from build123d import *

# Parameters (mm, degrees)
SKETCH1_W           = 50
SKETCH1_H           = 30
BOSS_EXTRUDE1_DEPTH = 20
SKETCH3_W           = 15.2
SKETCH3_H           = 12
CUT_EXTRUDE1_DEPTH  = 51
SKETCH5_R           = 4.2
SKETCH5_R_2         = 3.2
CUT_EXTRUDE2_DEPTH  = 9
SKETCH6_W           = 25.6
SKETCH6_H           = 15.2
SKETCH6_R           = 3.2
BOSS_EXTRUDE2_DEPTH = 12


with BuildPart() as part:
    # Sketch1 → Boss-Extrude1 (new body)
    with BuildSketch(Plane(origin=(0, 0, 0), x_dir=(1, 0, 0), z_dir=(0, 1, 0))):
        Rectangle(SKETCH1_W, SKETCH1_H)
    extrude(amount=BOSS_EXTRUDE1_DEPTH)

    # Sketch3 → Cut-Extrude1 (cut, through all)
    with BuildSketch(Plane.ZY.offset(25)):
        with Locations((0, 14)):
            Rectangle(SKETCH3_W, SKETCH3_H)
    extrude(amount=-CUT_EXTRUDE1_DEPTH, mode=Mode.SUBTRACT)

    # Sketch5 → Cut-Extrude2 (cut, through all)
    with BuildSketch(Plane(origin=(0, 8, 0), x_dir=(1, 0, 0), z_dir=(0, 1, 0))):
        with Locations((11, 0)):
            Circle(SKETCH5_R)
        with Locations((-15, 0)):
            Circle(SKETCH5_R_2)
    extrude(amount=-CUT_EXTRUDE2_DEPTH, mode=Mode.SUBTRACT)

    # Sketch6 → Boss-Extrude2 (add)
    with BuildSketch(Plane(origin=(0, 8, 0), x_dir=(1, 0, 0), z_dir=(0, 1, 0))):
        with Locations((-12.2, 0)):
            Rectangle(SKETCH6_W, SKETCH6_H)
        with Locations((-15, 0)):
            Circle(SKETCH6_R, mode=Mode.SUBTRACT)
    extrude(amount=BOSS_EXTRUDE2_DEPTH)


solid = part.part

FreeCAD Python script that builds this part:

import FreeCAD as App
import Part
import Sketcher

V = App.Vector
Q = App.Units.Quantity


def add_polygon(sketch, points):
    """Adds a closed chain of lines whose ends are joined by coincident constraints."""
    first, n = sketch.GeometryCount, len(points)
    for a, b in zip(points, points[1:] + points[:1]):
        sketch.addGeometry(Part.LineSegment(App.Vector(*a, 0), App.Vector(*b, 0)), False)
    for i in range(n):
        sketch.addConstraint(Sketcher.Constraint("Coincident", first + i, 2, first + (i + 1) % n, 1))

doc = App.newDocument("Part")
body = doc.addObject("PartDesign::Body", "Body")

# Sketch on XZ plane
sketch1 = body.newObject("Sketcher::SketchObject", "Sketch")
sketch1.AttachmentSupport = (doc.getObject("XZ_Plane"), [""])
sketch1.MapMode = "FlatFace"
add_polygon(sketch1, [(-25, -15), (-25, 15), (25, 15), (25, -15)])  # lines 0-3
sketch1.addConstraint(Sketcher.Constraint("Vertical", 0))
sketch1.addConstraint(Sketcher.Constraint("Horizontal", 1))
sketch1.addConstraint(Sketcher.Constraint("Vertical", 2))
sketch1.addConstraint(Sketcher.Constraint("Horizontal", 3))
sketch1.addConstraint(Sketcher.Constraint("Symmetric", 0, 2, 2, 2, -1, 1))
sketch1.addConstraint(Sketcher.Constraint("DistanceX", 1, 1, 1, 2, Q("50 mm")))
sketch1.addConstraint(Sketcher.Constraint("DistanceY", 0, 1, 0, 2, Q("30 mm")))
pad1 = body.newObject("PartDesign::Pad", "Pad")
pad1.Profile = sketch1
pad1.Length = 20
pad1.Reversed = True

# Sketch on YZ plane
sketch2 = body.newObject("Sketcher::SketchObject", "Sketch001")
sketch2.AttachmentSupport = (doc.getObject("YZ_Plane"), [""])
sketch2.MapMode = "FlatFace"
sketch2.AttachmentOffset = App.Placement(V(0, 0, -25), App.Rotation())
add_polygon(sketch2, [(20, -7.6), (8, -7.6), (8, 7.6), (20, 7.6)])  # lines 0-3
sketch2.addConstraint(Sketcher.Constraint("Horizontal", 0))
sketch2.addConstraint(Sketcher.Constraint("Vertical", 1))
sketch2.addConstraint(Sketcher.Constraint("Horizontal", 2))
sketch2.addConstraint(Sketcher.Constraint("Vertical", 3))
sketch2.addConstraint(Sketcher.Constraint("DistanceX", 0, 2, 0, 1, Q("12 mm")))
sketch2.addConstraint(Sketcher.Constraint("DistanceY", 1, 1, 1, 2, Q("15.2 mm")))
sketch2.addConstraint(Sketcher.Constraint("DistanceX", -1, 1, 0, 2, Q("8 mm")))
sketch2.addConstraint(Sketcher.Constraint("DistanceY", 0, 2, -1, 1, Q("7.6 mm")))
pocket1 = body.newObject("PartDesign::Pocket", "Pocket")
pocket1.Profile = sketch2
pocket1.Type = "ThroughAll"
pocket1.Reversed = True

# Sketch on XZ plane
sketch3 = body.newObject("Sketcher::SketchObject", "Sketch002")
sketch3.AttachmentSupport = (doc.getObject("XZ_Plane"), [""])
sketch3.MapMode = "FlatFace"
sketch3.AttachmentOffset = App.Placement(V(0, 0, -8), App.Rotation())
sketch3.addGeometry(Part.Circle(V(11, 0, 0), V(0, 0, 1), 4.2), False)
sketch3.addGeometry(Part.Circle(V(-15, 0, 0), V(0, 0, 1), 3.2), False)
sketch3.addConstraint(Sketcher.Constraint("PointOnObject", 0, 3, -1))
sketch3.addConstraint(Sketcher.Constraint("PointOnObject", 1, 3, -1))
sketch3.addConstraint(Sketcher.Constraint("Diameter", 0, Q("8.4 mm")))
sketch3.addConstraint(Sketcher.Constraint("Diameter", 1, Q("6.4 mm")))
sketch3.addConstraint(Sketcher.Constraint("DistanceX", -1, 1, 0, 3, Q("11 mm")))
sketch3.addConstraint(Sketcher.Constraint("DistanceX", 1, 3, -1, 1, Q("15 mm")))
pocket2 = body.newObject("PartDesign::Pocket", "Pocket001")
pocket2.Profile = sketch3
pocket2.Type = "ThroughAll"
pocket2.Reversed = True

# Sketch on XZ plane
sketch4 = body.newObject("Sketcher::SketchObject", "Sketch003")
sketch4.AttachmentSupport = (doc.getObject("XZ_Plane"), [""])
sketch4.MapMode = "FlatFace"
sketch4.AttachmentOffset = App.Placement(V(0, 0, -8), App.Rotation())
add_polygon(sketch4, [(-25, -7.6), (-25, 7.6), (0.6, 7.6), (0.6, -7.6)])  # lines 0-3
sketch4.addGeometry(Part.Circle(V(-15, 0, 0), V(0, 0, 1), 3.2), False)  # 4
sketch4.addConstraint(Sketcher.Constraint("Vertical", 0))
sketch4.addConstraint(Sketcher.Constraint("Horizontal", 1))
sketch4.addConstraint(Sketcher.Constraint("Vertical", 2))
sketch4.addConstraint(Sketcher.Constraint("Horizontal", 3))
sketch4.addConstraint(Sketcher.Constraint("PointOnObject", 4, 3, -1))
sketch4.addConstraint(Sketcher.Constraint("Diameter", 4, Q("6.4 mm")))
sketch4.addConstraint(Sketcher.Constraint("DistanceX", 1, 1, 1, 2, Q("25.6 mm")))
sketch4.addConstraint(Sketcher.Constraint("DistanceY", 0, 1, 0, 2, Q("15.2 mm")))
sketch4.addConstraint(Sketcher.Constraint("DistanceX", 4, 3, -1, 1, Q("15 mm")))
sketch4.addConstraint(Sketcher.Constraint("DistanceX", 0, 2, -1, 1, Q("25 mm")))
sketch4.addConstraint(Sketcher.Constraint("DistanceY", -1, 1, 0, 2, Q("7.6 mm")))
pad2 = body.newObject("PartDesign::Pad", "Pad001")
pad2.Profile = sketch4
pad2.Length = 12
pad2.Reversed = True

doc.recompute()
